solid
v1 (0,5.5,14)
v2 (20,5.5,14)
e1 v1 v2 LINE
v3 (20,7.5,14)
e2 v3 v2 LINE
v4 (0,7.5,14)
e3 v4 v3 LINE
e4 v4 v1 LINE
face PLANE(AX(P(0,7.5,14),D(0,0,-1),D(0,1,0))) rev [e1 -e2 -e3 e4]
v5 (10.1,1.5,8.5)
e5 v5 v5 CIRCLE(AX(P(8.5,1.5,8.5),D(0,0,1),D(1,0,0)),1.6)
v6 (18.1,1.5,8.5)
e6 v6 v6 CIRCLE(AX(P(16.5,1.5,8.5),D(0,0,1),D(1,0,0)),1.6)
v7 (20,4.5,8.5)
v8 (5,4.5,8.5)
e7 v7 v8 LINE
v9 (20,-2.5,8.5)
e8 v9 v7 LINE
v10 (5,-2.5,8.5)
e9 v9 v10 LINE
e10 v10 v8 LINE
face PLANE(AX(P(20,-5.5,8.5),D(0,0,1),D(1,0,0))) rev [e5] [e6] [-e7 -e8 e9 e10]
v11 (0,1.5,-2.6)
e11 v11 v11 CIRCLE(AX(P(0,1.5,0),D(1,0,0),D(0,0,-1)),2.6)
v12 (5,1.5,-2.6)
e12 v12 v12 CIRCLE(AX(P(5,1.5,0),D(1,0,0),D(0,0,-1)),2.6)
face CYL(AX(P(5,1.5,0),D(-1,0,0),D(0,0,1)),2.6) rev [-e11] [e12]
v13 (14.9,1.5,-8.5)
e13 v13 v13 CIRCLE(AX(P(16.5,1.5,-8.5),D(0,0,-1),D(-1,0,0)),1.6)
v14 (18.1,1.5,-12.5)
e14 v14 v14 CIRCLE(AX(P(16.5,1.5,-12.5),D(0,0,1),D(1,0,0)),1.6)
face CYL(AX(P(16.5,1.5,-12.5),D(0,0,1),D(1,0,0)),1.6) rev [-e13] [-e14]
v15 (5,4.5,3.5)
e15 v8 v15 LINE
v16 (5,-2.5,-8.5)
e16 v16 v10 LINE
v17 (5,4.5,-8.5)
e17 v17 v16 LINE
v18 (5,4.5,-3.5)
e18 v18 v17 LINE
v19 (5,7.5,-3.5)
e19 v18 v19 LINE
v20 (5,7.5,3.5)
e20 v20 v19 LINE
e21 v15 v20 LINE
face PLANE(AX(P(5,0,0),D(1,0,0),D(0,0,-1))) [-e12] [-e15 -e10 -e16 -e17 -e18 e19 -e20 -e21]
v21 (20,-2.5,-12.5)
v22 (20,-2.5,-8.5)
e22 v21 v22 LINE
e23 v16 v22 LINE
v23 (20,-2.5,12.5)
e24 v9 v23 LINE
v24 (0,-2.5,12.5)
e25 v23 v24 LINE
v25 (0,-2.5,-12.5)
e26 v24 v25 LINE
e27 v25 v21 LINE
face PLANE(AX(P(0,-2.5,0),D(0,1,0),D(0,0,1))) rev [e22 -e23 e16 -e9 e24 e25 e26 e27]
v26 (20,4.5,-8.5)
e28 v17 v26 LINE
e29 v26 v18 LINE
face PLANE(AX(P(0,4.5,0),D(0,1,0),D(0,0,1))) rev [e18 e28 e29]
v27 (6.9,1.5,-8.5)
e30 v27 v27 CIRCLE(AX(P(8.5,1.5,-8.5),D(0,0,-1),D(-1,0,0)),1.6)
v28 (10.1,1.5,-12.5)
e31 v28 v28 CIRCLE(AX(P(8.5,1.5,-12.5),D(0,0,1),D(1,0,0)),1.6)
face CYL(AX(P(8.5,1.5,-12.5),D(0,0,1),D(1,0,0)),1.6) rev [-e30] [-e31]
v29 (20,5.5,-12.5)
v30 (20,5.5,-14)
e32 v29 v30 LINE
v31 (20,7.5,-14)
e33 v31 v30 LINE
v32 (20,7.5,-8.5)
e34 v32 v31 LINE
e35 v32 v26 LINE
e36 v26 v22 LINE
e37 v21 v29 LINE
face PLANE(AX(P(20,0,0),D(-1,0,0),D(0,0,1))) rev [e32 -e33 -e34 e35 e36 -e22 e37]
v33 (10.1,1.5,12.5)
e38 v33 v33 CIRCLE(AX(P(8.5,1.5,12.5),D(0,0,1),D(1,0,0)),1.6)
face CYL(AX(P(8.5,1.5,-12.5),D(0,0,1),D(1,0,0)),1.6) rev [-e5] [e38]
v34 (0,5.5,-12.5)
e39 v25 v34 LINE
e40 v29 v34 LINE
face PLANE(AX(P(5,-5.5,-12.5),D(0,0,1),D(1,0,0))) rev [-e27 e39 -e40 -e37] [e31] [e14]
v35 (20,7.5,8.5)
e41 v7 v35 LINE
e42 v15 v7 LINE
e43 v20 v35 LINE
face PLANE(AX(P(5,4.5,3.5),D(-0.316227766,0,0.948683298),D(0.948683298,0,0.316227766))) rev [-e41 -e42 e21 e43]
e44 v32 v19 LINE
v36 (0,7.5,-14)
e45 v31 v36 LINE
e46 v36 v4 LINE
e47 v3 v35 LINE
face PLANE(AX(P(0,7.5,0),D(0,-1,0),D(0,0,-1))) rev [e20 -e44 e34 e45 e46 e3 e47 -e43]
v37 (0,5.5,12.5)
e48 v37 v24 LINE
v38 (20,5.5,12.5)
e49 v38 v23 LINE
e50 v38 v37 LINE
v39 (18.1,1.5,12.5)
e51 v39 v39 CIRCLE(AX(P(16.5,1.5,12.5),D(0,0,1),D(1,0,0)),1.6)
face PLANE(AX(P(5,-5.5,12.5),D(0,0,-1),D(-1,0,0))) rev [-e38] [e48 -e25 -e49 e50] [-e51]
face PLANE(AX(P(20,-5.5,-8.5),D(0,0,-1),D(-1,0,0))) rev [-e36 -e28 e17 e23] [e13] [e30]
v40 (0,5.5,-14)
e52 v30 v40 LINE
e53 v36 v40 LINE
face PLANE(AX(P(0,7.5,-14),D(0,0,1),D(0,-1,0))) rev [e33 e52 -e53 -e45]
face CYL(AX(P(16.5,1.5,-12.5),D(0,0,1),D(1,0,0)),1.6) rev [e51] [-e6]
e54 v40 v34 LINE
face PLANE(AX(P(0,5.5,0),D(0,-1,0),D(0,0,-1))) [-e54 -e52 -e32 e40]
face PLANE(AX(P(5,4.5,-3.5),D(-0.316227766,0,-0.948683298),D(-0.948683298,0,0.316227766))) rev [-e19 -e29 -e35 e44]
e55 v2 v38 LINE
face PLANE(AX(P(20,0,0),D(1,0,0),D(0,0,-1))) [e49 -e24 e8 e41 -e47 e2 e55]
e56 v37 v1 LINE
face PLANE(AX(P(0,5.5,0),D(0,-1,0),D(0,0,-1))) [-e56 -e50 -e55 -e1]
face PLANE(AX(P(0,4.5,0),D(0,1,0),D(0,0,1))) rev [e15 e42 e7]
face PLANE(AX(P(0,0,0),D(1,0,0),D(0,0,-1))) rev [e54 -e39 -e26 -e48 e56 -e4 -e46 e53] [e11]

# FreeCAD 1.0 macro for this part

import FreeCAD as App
import Part
import Sketcher

doc = App.newDocument("Part")
body = doc.addObject("PartDesign::Body", "Body")

sketch1 = body.newObject("Sketcher::SketchObject", "Sketch")
sketch1.AttachmentSupport = (doc.getObject("YZ_Plane"), [""])
sketch1.MapMode = "FlatFace"
sketch1.addGeometry([
    Part.LineSegment(App.Vector(5.5, 12.5, 0), App.Vector(-5.5, 12.5, 0)),
    Part.LineSegment(App.Vector(-5.5, 12.5, 0), App.Vector(-5.5, -12.5, 0)),
    Part.LineSegment(App.Vector(-5.5, -12.5, 0), App.Vector(5.5, -12.5, 0)),
    Part.LineSegment(App.Vector(5.5, -12.5, 0), App.Vector(5.5, 12.5, 0)),
    Part.Circle(App.Vector(1.5, 0, 0), App.Vector(0, 0, 1), 2.6),
], False)
sketch1.addConstraint([
    Sketcher.Constraint("Coincident", 0, 2, 1, 1),
    Sketcher.Constraint("Coincident", 1, 2, 2, 1),
    Sketcher.Constraint("Coincident", 2, 2, 3, 1),
    Sketcher.Constraint("Coincident", 3, 2, 0, 1),
    Sketcher.Constraint("Horizontal", 0),
    Sketcher.Constraint("Vertical", 1),
    Sketcher.Constraint("Horizontal", 2),
    Sketcher.Constraint("Vertical", 3),
    Sketcher.Constraint("Symmetric", 0, 2, 2, 2, -1, 1),
    Sketcher.Constraint("PointOnObject", 4, 3, -1),
    Sketcher.Constraint("Diameter", 4, 5.2),
    Sketcher.Constraint("DistanceX", 0, 2, 0, 1, 11.0),
    Sketcher.Constraint("DistanceY", 1, 2, 1, 1, 25.0),
    Sketcher.Constraint("DistanceX", 0, 2, 4, 3, 7.0),
])
pad1 = body.newObject("PartDesign::Pad", "Pad")
pad1.Profile = sketch1
pad1.Length = 5

sketch2 = body.newObject("Sketcher::SketchObject", "Sketch001")
sketch2.AttachmentSupport = (doc.getObject("YZ_Plane"), [""])
sketch2.MapMode = "FlatFace"
sketch2.AttachmentOffset = App.Placement(App.Vector(0, 0, 5), App.Rotation())
sketch2.addGeometry([
    Part.LineSegment(App.Vector(5.5, 12.5, 0), App.Vector(-5.5, 12.5, 0)),
    Part.LineSegment(App.Vector(-5.5, 12.5, 0), App.Vector(-5.5, 8.5, 0)),
    Part.LineSegment(App.Vector(-5.5, 8.5, 0), App.Vector(5.5, 8.5, 0)),
    Part.LineSegment(App.Vector(5.5, 8.5, 0), App.Vector(5.5, 12.5, 0)),
    Part.LineSegment(App.Vector(5.5, -8.5, 0), App.Vector(-5.5, -8.5, 0)),
    Part.LineSegment(App.Vector(-5.5, -8.5, 0), App.Vector(-5.5, -12.5, 0)),
    Part.LineSegment(App.Vector(-5.5, -12.5, 0), App.Vector(5.5, -12.5, 0)),
    Part.LineSegment(App.Vector(5.5, -12.5, 0), App.Vector(5.5, -8.5, 0)),
], False)
sketch2.addConstraint([
    Sketcher.Constraint("Coincident", 0, 2, 1, 1),
    Sketcher.Constraint("Coincident", 1, 2, 2, 1),
    Sketcher.Constraint("Coincident", 2, 2, 3, 1),
    Sketcher.Constraint("Coincident", 3, 2, 0, 1),
    Sketcher.Constraint("Coincident", 4, 2, 5, 1),
    Sketcher.Constraint("Coincident", 5, 2, 6, 1),
    Sketcher.Constraint("Coincident", 6, 2, 7, 1),
    Sketcher.Constraint("Coincident", 7, 2, 4, 1),
    Sketcher.Constraint("Horizontal", 0),
    Sketcher.Constraint("Vertical", 1),
    Sketcher.Constraint("Horizontal", 2),
    Sketcher.Constraint("Vertical", 3),
    Sketcher.Constraint("Horizontal", 4),
    Sketcher.Constraint("Vertical", 5),
    Sketcher.Constraint("Horizontal", 6),
    Sketcher.Constraint("Vertical", 7),
    Sketcher.Constraint("Symmetric", 2, 2, 4, 2, -1, 1),
    Sketcher.Constraint("Symmetric", 0, 2, 6, 2, -1, 1),
    Sketcher.Constraint("Vertical", 1, 2, 4, 2),
    Sketcher.Constraint("DistanceX", 0, 2, 0, 1, 11.0),
    Sketcher.Constraint("DistanceY", 1, 2, 1, 1, 4.0),
    Sketcher.Constraint("DistanceY", 4, 2, 1, 2, 17.0),
])
pad2 = body.newObject("PartDesign::Pad", "Pad001")
pad2.Profile = sketch2
pad2.Length = 15

sketch3 = body.newObject("Sketcher::SketchObject", "Sketch002")
sketch3.AttachmentSupport = (doc.getObject("XY_Plane"), [""])
sketch3.MapMode = "FlatFace"
sketch3.AttachmentOffset = App.Placement(App.Vector(0, 0, 12.5), App.Rotation())
sketch3.addGeometry([
    Part.Circle(App.Vector(16.5, 1.5, 0), App.Vector(0, 0, 1), 1.6),
    Part.Circle(App.Vector(8.5, 1.5, 0), App.Vector(0, 0, 1), 1.6),
], False)
sketch3.addConstraint([
    Sketcher.Constraint("Equal", 0, 1),
    Sketcher.Constraint("Horizontal", 0, 3, 1, 3),
    Sketcher.Constraint("Diameter", 0, 3.2),
    Sketcher.Constraint("DistanceX", 1, 3, 0, 3, 8.0),
    Sketcher.Constraint("DistanceX", -1, 1, 0, 3, 16.5),
    Sketcher.Constraint("DistanceY", -1, 1, 0, 3, 1.5),
])
pocket1 = body.newObject("PartDesign::Pocket", "Pocket")
pocket1.Profile = sketch3
pocket1.Type = "ThroughAll"

sketch4 = body.newObject("Sketcher::SketchObject", "Sketch003")
sketch4.AttachmentSupport = (doc.getObject("XZ_Plane"), [""])
sketch4.MapMode = "FlatFace"
sketch4.AttachmentOffset = App.Placement(App.Vector(0, 0, -5.5), App.Rotation())
sketch4.addGeometry([
    Part.LineSegment(App.Vector(5, -8, 0), App.Vector(20, -8, 0)),
    Part.LineSegment(App.Vector(20, -8, 0), App.Vector(20, -14, 0)),
    Part.LineSegment(App.Vector(20, -14, 0), App.Vector(0, -14, 0)),
    Part.LineSegment(App.Vector(0, -14, 0), App.Vector(0, 14, 0)),
    Part.LineSegment(App.Vector(0, 14, 0), App.Vector(20, 14, 0)),
    Part.LineSegment(App.Vector(20, 14, 0), App.Vector(20, 8, 0)),
    Part.LineSegment(App.Vector(20, 8, 0), App.Vector(5, 8, 0)),
    Part.LineSegment(App.Vector(5, 8, 0), App.Vector(5, -8, 0)),
], False)
sketch4.addConstraint([
    Sketcher.Constraint("Coincident", 0, 2, 1, 1),
    Sketcher.Constraint("Coincident", 1, 2, 2, 1),
    Sketcher.Constraint("Coincident", 2, 2, 3, 1),
    Sketcher.Constraint("Coincident", 3, 2, 4, 1),
    Sketcher.Constraint("Coincident", 4, 2, 5, 1),
    Sketcher.Constraint("Coincident", 5, 2, 6, 1),
    Sketcher.Constraint("Coincident", 6, 2, 7, 1),
    Sketcher.Constraint("Coincident", 7, 2, 0, 1),
    Sketcher.Constraint("Horizontal", 0),
    Sketcher.Constraint("Vertical", 1),
    Sketcher.Constraint("Horizontal", 2),
    Sketcher.Constraint("Vertical", 3),
    Sketcher.Constraint("Horizontal", 4),
    Sketcher.Constraint("Vertical", 5),
    Sketcher.Constraint("Horizontal", 6),
    Sketcher.Constraint("Vertical", 7),
    Sketcher.Constraint("Symmetric", 2, 2, 3, 2, -1, 1),
    Sketcher.Constraint("Symmetric", 0, 2, 5, 2, -1),
    Sketcher.Constraint("DistanceX", 0, 1, 0, 2, 15.0),
    Sketcher.Constraint("DistanceX", 2, 2, 2, 1, 20.0),
    Sketcher.Constraint("DistanceY", 3, 1, 3, 2, 28.0),
    Sketcher.Constraint("DistanceY", 7, 2, 7, 1, 17.0),
])
pad3 = body.newObject("PartDesign::Pad", "Pad002")
pad3.Profile = sketch4
pad3.Length = 2
pad3.Reversed = True

sketch5 = body.newObject("Sketcher::SketchObject", "Sketch004")
sketch5.AttachmentSupport = (doc.getObject("XZ_Plane"), [""])
sketch5.MapMode = "FlatFace"
sketch5.AttachmentOffset = App.Placement(App.Vector(0, 0, -7.5), App.Rotation())
sketch5.addGeometry([
    Part.LineSegment(App.Vector(20, 8, 0), App.Vector(5, 8, 0)),
    Part.LineSegment(App.Vector(5, 8, 0), App.Vector(5, 4, 0)),
    Part.LineSegment(App.Vector(5, 4, 0), App.Vector(20, 8, 0)),
    Part.LineSegment(App.Vector(5, -4, 0), App.Vector(5, -8, 0)),
    Part.LineSegment(App.Vector(5, -8, 0), App.Vector(20, -8, 0)),
    Part.LineSegment(App.Vector(20, -8, 0), App.Vector(5, -4, 0)),
], False)
sketch5.addConstraint([
    Sketcher.Constraint("Coincident", 0, 2, 1, 1),
    Sketcher.Constraint("Coincident", 1, 2, 2, 1),
    Sketcher.Constraint("Coincident", 2, 2, 0, 1),
    Sketcher.Constraint("Coincident", 3, 2, 4, 1),
    Sketcher.Constraint("Coincident", 4, 2, 5, 1),
    Sketcher.Constraint("Coincident", 5, 2, 3, 1),
    Sketcher.Constraint("Horizontal", 0),
    Sketcher.Constraint("Vertical", 1),
    Sketcher.Constraint("Vertical", 3),
    Sketcher.Constraint("Horizontal", 4),
    Sketcher.Constraint("Symmetric", 0, 2, 3, 2, -1),
    Sketcher.Constraint("Vertical", 2, 2, 4, 2),
    Sketcher.Constraint("Equal", 1, 3),
    Sketcher.Constraint("DistanceX", 0, 2, 0, 1, 15.0),
    Sketcher.Constraint("DistanceY", 1, 2, 1, 1, 5.0),
    Sketcher.Constraint("DistanceX", -1, 1, 0, 2, 5.0),
    Sketcher.Constraint("DistanceY", 3, 2, 1, 2, 12.0),
])
pad4 = body.newObject("PartDesign::Pad", "Pad003")
pad4.Profile = sketch5
pad4.Length = 3

sketch6 = body.newObject("Sketcher::SketchObject", "Sketch005")
sketch6.AttachmentSupport = (doc.getObject("XZ_Plane"), [""])
sketch6.MapMode = "FlatFace"
sketch6.AttachmentOffset = App.Placement(App.Vector(0, 0, 5.5), App.Rotation())
sketch6.addGeometry([
    Part.LineSegment(App.Vector(0, 12, 0), App.Vector(0, -12, 0)),
    Part.LineSegment(App.Vector(0, -12, 0), App.Vector(20, -12, 0)),
    Part.LineSegment(App.Vector(20, -12, 0), App.Vector(20, 12, 0)),
    Part.LineSegment(App.Vector(20, 12, 0), App.Vector(0, 12, 0)),
], False)
sketch6.addConstraint([
    Sketcher.Constraint("Coincident", 0, 2, 1, 1),
    Sketcher.Constraint("Coincident", 1, 2, 2, 1),
    Sketcher.Constraint("Coincident", 2, 2, 3, 1),
    Sketcher.Constraint("Coincident", 3, 2, 0, 1),
    Sketcher.Constraint("Vertical", 0),
    Sketcher.Constraint("Horizontal", 1),
    Sketcher.Constraint("Vertical", 2),
    Sketcher.Constraint("Horizontal", 3),
    Sketcher.Constraint("Symmetric", 0, 2, 3, 2, -1, 1),
    Sketcher.Constraint("DistanceX", 1, 1, 1, 2, 20.0),
    Sketcher.Constraint("DistanceY", 0, 2, 0, 1, 25.0),
])
pocket2 = body.newObject("PartDesign::Pocket", "Pocket001")
pocket2.Profile = sketch6
pocket2.Length = 3

doc.recompute()
